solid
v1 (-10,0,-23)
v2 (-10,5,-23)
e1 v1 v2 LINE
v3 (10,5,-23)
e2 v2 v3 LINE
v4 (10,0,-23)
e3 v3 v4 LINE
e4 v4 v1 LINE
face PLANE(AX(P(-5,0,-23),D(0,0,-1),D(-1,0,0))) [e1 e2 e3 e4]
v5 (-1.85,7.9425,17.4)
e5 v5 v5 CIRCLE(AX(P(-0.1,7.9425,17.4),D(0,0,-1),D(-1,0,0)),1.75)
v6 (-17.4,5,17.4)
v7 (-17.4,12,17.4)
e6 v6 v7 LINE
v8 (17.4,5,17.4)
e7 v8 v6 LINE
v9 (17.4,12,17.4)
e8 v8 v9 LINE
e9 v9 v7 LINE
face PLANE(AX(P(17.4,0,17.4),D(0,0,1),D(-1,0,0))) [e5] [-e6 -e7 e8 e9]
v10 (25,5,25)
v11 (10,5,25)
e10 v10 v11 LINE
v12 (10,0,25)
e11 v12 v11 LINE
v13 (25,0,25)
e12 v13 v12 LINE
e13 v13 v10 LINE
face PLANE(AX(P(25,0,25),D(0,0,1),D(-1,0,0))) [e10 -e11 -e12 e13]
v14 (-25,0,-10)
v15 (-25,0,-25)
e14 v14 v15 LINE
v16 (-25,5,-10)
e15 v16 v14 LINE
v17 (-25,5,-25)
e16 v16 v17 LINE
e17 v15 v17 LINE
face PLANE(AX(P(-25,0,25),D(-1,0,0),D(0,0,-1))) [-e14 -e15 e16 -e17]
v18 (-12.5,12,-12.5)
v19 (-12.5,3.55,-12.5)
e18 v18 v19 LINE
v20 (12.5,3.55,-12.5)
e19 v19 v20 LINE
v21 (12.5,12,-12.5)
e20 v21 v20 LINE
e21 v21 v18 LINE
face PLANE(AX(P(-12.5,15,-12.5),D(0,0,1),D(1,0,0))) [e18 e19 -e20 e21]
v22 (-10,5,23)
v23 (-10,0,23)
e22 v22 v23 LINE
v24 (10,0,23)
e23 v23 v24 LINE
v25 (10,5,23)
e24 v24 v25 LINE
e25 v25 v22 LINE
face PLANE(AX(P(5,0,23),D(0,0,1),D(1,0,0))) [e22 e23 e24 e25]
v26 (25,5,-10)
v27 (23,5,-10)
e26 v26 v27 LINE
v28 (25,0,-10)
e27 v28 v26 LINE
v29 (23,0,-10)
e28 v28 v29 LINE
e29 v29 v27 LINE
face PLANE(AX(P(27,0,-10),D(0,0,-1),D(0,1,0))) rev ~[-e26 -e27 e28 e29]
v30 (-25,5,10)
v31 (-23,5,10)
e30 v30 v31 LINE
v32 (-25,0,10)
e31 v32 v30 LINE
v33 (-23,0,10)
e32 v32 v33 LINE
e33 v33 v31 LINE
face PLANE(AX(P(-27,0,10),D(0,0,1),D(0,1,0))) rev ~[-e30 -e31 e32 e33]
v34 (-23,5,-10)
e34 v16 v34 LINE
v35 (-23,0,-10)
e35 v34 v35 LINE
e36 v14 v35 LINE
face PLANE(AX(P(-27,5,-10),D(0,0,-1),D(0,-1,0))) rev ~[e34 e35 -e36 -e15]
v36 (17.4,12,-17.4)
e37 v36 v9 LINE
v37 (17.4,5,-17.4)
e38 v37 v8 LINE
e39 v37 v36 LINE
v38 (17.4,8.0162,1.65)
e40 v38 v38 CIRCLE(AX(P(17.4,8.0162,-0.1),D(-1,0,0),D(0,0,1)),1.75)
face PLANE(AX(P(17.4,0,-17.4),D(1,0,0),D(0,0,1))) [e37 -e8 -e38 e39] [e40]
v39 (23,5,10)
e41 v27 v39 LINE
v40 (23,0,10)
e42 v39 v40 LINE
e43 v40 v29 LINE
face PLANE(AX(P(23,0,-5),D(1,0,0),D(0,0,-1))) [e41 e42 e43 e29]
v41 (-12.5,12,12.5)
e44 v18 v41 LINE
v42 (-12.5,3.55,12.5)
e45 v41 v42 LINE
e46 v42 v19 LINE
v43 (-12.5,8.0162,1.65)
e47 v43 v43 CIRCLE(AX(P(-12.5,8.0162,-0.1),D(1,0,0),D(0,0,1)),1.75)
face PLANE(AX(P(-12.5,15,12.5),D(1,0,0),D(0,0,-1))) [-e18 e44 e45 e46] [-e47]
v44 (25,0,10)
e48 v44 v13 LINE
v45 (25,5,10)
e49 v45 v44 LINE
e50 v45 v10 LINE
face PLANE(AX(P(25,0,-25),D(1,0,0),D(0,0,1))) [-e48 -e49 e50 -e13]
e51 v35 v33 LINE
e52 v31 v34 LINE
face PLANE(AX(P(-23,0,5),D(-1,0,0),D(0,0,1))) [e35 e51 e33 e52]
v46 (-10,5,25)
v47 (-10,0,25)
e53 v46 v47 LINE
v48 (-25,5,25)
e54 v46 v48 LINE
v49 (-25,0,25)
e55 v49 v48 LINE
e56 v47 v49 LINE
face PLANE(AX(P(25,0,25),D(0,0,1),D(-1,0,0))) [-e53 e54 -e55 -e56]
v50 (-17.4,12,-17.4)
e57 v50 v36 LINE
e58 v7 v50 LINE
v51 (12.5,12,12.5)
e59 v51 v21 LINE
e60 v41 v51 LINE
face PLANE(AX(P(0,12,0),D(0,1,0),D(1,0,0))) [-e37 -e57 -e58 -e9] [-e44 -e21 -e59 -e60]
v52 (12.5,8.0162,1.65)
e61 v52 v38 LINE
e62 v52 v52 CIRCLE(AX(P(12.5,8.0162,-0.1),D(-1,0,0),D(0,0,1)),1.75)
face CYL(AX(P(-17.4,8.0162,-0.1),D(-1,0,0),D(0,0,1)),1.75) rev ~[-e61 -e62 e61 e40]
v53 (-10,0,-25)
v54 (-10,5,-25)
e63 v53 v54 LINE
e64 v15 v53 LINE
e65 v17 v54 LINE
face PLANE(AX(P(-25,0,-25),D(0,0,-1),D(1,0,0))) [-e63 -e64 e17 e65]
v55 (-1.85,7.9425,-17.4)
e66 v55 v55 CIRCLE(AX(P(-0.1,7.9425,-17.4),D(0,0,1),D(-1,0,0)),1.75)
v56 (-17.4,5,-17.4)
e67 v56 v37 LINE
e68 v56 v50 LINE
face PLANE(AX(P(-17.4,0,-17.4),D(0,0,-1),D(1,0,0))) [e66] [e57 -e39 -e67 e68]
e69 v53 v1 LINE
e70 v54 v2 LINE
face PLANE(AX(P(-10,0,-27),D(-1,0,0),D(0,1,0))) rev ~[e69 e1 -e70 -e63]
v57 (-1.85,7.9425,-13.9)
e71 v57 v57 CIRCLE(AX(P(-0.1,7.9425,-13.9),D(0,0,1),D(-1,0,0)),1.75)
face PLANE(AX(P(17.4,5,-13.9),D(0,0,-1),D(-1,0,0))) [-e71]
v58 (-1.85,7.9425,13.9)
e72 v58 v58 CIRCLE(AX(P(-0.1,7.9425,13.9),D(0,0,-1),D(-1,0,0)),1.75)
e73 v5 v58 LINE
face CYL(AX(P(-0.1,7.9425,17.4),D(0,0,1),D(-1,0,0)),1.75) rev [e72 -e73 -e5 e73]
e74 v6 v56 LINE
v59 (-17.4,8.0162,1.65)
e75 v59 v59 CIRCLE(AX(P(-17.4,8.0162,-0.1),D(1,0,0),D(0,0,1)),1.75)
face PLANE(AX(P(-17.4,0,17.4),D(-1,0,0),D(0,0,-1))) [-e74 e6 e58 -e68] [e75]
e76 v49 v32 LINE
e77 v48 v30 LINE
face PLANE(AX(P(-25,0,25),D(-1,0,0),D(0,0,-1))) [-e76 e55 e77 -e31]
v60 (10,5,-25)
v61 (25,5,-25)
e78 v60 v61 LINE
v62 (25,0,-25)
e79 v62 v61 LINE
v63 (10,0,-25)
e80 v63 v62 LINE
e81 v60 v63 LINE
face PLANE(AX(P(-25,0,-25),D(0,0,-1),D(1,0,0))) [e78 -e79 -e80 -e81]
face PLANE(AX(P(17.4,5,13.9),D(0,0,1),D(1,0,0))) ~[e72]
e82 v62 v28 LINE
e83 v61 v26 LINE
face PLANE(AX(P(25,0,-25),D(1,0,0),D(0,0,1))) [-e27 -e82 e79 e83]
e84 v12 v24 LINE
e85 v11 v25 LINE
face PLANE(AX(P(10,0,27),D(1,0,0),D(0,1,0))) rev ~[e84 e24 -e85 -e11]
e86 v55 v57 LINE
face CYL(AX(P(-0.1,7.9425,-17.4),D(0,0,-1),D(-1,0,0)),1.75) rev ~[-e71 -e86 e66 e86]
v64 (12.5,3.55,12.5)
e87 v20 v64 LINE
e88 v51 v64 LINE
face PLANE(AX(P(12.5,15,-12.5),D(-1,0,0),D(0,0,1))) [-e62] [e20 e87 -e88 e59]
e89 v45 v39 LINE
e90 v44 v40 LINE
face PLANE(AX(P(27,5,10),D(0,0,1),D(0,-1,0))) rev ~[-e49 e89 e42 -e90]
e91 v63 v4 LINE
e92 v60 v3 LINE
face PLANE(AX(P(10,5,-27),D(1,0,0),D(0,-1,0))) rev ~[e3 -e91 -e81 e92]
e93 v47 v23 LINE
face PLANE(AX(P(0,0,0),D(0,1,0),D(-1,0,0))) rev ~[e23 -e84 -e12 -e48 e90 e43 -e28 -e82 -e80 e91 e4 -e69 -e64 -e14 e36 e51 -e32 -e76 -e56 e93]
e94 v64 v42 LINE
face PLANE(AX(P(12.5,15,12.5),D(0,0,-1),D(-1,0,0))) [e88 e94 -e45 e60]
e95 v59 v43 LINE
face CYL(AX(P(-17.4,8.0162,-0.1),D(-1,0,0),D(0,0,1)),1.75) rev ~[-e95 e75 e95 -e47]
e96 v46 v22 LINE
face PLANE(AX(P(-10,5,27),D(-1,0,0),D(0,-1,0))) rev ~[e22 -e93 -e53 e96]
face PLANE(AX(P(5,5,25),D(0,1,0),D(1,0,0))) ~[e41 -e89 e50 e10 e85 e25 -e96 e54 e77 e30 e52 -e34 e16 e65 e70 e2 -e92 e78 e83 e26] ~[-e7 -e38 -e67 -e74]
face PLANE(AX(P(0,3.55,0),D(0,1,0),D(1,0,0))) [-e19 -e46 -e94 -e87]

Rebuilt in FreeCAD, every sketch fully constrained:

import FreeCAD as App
import Part
import Sketcher
from FreeCAD import Vector


def add_polygon(sketch, points):
    """Adds a closed chain of lines whose ends are joined by coincident constraints."""
    first, n = sketch.GeometryCount, len(points)
    for a, b in zip(points, points[1:] + points[:1]):
        sketch.addGeometry(Part.LineSegment(App.Vector(*a, 0), App.Vector(*b, 0)), False)
    for i in range(n):
        sketch.addConstraint(Sketcher.Constraint("Coincident", first + i, 2, first + (i + 1) % n, 1))

doc = App.newDocument("Part")
body = doc.addObject("PartDesign::Body", "Body")

# Sketch on XZ plane
sketch1 = body.newObject("Sketcher::SketchObject", "Sketch")
sketch1.AttachmentSupport = (doc.getObject("XZ_Plane"), [""])
sketch1.MapMode = "FlatFace"
add_polygon(sketch1, [(-25, 25), (25, 25), (25, -25), (-25, -25)])  # lines 0-3
add_polygon(sketch1, [(17, -17), (17, 17), (-17, 17), (-17, -17)])  # lines 4-7
sketch1.addConstraint(Sketcher.Constraint("Horizontal", 0))
sketch1.addConstraint(Sketcher.Constraint("Vertical", 1))
sketch1.addConstraint(Sketcher.Constraint("Horizontal", 2))
sketch1.addConstraint(Sketcher.Constraint("Vertical", 3))
sketch1.addConstraint(Sketcher.Constraint("Vertical", 4))
sketch1.addConstraint(Sketcher.Constraint("Horizontal", 5))
sketch1.addConstraint(Sketcher.Constraint("Vertical", 6))
sketch1.addConstraint(Sketcher.Constraint("Horizontal", 7))
sketch1.addConstraint(Sketcher.Constraint("Symmetric", 0, 2, 2, 2, -1, 1))
sketch1.addConstraint(Sketcher.Constraint("Symmetric", 4, 2, 6, 2, -1, 1))
sketch1.addConstraint(Sketcher.Constraint("Equal", 2, 1))
sketch1.addConstraint(Sketcher.Constraint("Equal", 7, 4))
sketch1.addConstraint(Sketcher.Constraint("DistanceX", 0, 1, 0, 2, 50.0))
sketch1.addConstraint(Sketcher.Constraint("DistanceX", 5, 2, 5, 1, 34.8))
pad1 = body.newObject("PartDesign::Pad", "Pad")
pad1.Profile = sketch1
pad1.Length = 5
pad1.Reversed = True

# Sketch on XZ plane
sketch2 = body.newObject("Sketcher::SketchObject", "Sketch001")
sketch2.AttachmentSupport = (doc.getObject("XZ_Plane"), [""])
sketch2.MapMode = "FlatFace"
add_polygon(sketch2, [(-17, 17), (17, 17), (17, -17), (-17, -17)])  # lines 0-3
sketch2.addConstraint(Sketcher.Constraint("Horizontal", 0))
sketch2.addConstraint(Sketcher.Constraint("Vertical", 1))
sketch2.addConstraint(Sketcher.Constraint("Horizontal", 2))
sketch2.addConstraint(Sketcher.Constraint("Vertical", 3))
sketch2.addConstraint(Sketcher.Constraint("Symmetric", 0, 2, 2, 2, -1, 1))
sketch2.addConstraint(Sketcher.Constraint("Equal", 2, 1))
sketch2.addConstraint(Sketcher.Constraint("DistanceX", 0, 1, 0, 2, 34.8))
pad2 = body.newObject("PartDesign::Pad", "Pad001")
pad2.Profile = sketch2
pad2.Length = 15
pad2.Reversed = True

# Sketch on XZ plane
sketch3 = body.newObject("Sketcher::SketchObject", "Sketch002")
sketch3.AttachmentSupport = (doc.getObject("XZ_Plane"), [""])
sketch3.MapMode = "FlatFace"
add_polygon(sketch3, [(5, 25), (-5, 25), (-5, 5), (-25, 5), (-25, -5), (-5, -5), (-5, -25), (5, -25), (5, -5), (25, -5), (25, 5), (5, 5)])  # lines 0-11
sketch3.addConstraint(Sketcher.Constraint("Horizontal", 0))
sketch3.addConstraint(Sketcher.Constraint("Vertical", 1))
sketch3.addConstraint(Sketcher.Constraint("Horizontal", 2))
sketch3.addConstraint(Sketcher.Constraint("Vertical", 3))
sketch3.addConstraint(Sketcher.Constraint("Horizontal", 4))
sketch3.addConstraint(Sketcher.Constraint("Vertical", 5))
sketch3.addConstraint(Sketcher.Constraint("Horizontal", 6))
sketch3.addConstraint(Sketcher.Constraint("Vertical", 7))
sketch3.addConstraint(Sketcher.Constraint("Horizontal", 8))
sketch3.addConstraint(Sketcher.Constraint("Vertical", 9))
sketch3.addConstraint(Sketcher.Constraint("Horizontal", 10))
sketch3.addConstraint(Sketcher.Constraint("Vertical", 11))
sketch3.addConstraint(Sketcher.Constraint("Symmetric", 0, 2, 6, 2, -1, 1))
sketch3.addConstraint(Sketcher.Constraint("Symmetric", 2, 2, 8, 2, -1, 1))
sketch3.addConstraint(Sketcher.Constraint("Symmetric", 4, 2, 10, 2, -1, 1))
sketch3.addConstraint(Sketcher.Constraint("Symmetric", 4, 2, 7, 2, -2))
sketch3.addConstraint(Sketcher.Constraint("Equal", 10, 1))
sketch3.addConstraint(Sketcher.Constraint("Equal", 6, 3))
sketch3.addConstraint(Sketcher.Constraint("DistanceX", 0, 2, 0, 1, 10.0))
sketch3.addConstraint(Sketcher.Constraint("DistanceX", 2, 2, 2, 1, 20.0))
pad3 = body.newObject("PartDesign::Pad", "Pad002")
pad3.Profile = sketch3
pad3.Length = 2

# Sketch on YZ plane
sketch4 = body.newObject("Sketcher::SketchObject", "Sketch003")
sketch4.AttachmentSupport = (doc.getObject("YZ_Plane"), [""])
sketch4.MapMode = "FlatFace"
sketch4.AttachmentOffset = App.Placement(Vector(0, 0, -25), App.Rotation())
add_polygon(sketch4, [(-2, -5), (-2, 5), (5, 5), (5, -5)])  # lines 0-3
sketch4.addConstraint(Sketcher.Constraint("Vertical", 0))
sketch4.addConstraint(Sketcher.Constraint("Horizontal", 1))
sketch4.addConstraint(Sketcher.Constraint("Vertical", 2))
sketch4.addConstraint(Sketcher.Constraint("Horizontal", 3))
sketch4.addConstraint(Sketcher.Constraint("DistanceY", 0, 1, 0, 2, 10.0))
sketch4.addConstraint(Sketcher.Constraint("DistanceX", 1, 1, 1, 2, 7.0))
sketch4.addConstraint(Sketcher.Constraint("DistanceX", 0, 2, -1, 1, 2.0))
sketch4.addConstraint(Sketcher.Constraint("DistanceY", -1, 1, 0, 2, 5.0))
pad4 = body.newObject("PartDesign::Pad", "Pad003")
pad4.Profile = sketch4
pad4.Length = 2
pad4.Reversed = True
doc.recompute()

mirrored = body.newObject("PartDesign::Mirrored", "Mirrored")
mirrored.Originals = [pad4]
mirrored.MirrorPlane = (doc.getObject("YZ_Plane"), [""])
body.Tip = mirrored

# Sketch on XY plane
sketch5 = body.newObject("Sketcher::SketchObject", "Sketch004")
sketch5.AttachmentSupport = (doc.getObject("XY_Plane"), [""])
sketch5.MapMode = "FlatFace"
sketch5.AttachmentOffset = App.Placement(Vector(0, 0, -25), App.Rotation())
add_polygon(sketch5, [(5, -2), (-5, -2), (-5, 5), (5, 5)])  # lines 0-3
sketch5.addConstraint(Sketcher.Constraint("Horizontal", 0))
sketch5.addConstraint(Sketcher.Constraint("Vertical", 1))
sketch5.addConstraint(Sketcher.Constraint("Horizontal", 2))
sketch5.addConstraint(Sketcher.Constraint("Vertical", 3))
sketch5.addConstraint(Sketcher.Constraint("DistanceX", 0, 2, 0, 1, 10.0))
sketch5.addConstraint(Sketcher.Constraint("DistanceY", 1, 1, 1, 2, 7.0))
sketch5.addConstraint(Sketcher.Constraint("DistanceX", 0, 2, -1, 1, 5.0))
sketch5.addConstraint(Sketcher.Constraint("DistanceY", 0, 2, -1, 1, 2.0))
pad5 = body.newObject("PartDesign::Pad", "Pad004")
pad5.Profile = sketch5
pad5.Length = 2
pad5.Reversed = True
doc.recompute()

mirrored2 = body.newObject("PartDesign::Mirrored", "Mirrored001")
mirrored2.Originals = [pad5]
mirrored2.MirrorPlane = (doc.getObject("XY_Plane"), [""])
body.Tip = mirrored2

# Sketch on XZ plane
sketch6 = body.newObject("Sketcher::SketchObject", "Sketch005")
sketch6.AttachmentSupport = (doc.getObject("XZ_Plane"), [""])
sketch6.MapMode = "FlatFace"
add_polygon(sketch6, [(27, 27), (-27, 27), (-27, -27), (27, -27)])  # lines 0-3
sketch6.addConstraint(Sketcher.Constraint("Horizontal", 0))
sketch6.addConstraint(Sketcher.Constraint("Vertical", 1))
sketch6.addConstraint(Sketcher.Constraint("Horizontal", 2))
sketch6.addConstraint(Sketcher.Constraint("Vertical", 3))
sketch6.addConstraint(Sketcher.Constraint("Symmetric", 0, 2, 2, 2, -1, 1))
sketch6.addConstraint(Sketcher.Constraint("Equal", 2, 1))
sketch6.addConstraint(Sketcher.Constraint("DistanceX", 0, 2, 0, 1, 54.0))
pocket1 = body.newObject("PartDesign::Pocket", "Pocket")
pocket1.Profile = sketch6
pocket1.Length = 6.75
pocket1.Reversed = True

# Sketch on XZ plane
sketch7 = body.newObject("Sketcher::SketchObject", "Sketch006")
sketch7.AttachmentSupport = (doc.getObject("XZ_Plane"), [""])
sketch7.MapMode = "FlatFace"
sketch7.AttachmentOffset = App.Placement(Vector(0, 0, -15), App.Rotation())
add_polygon(sketch7, [(-12, 12), (12, 12), (12, -12), (-12, -12)])  # lines 0-3
sketch7.addConstraint(Sketcher.Constraint("Horizontal", 0))
sketch7.addConstraint(Sketcher.Constraint("Vertical", 1))
sketch7.addConstraint(Sketcher.Constraint("Horizontal", 2))
sketch7.addConstraint(Sketcher.Constraint("Vertical", 3))
sketch7.addConstraint(Sketcher.Constraint("Symmetric", 0, 2, 2, 2, -1, 1))
sketch7.addConstraint(Sketcher.Constraint("Equal", 2, 1))
sketch7.addConstraint(Sketcher.Constraint("DistanceX", 0, 1, 0, 2, 25.0))
pocket2 = body.newObject("PartDesign::Pocket", "Pocket001")
pocket2.Profile = sketch7
pocket2.Length = 11.45
pocket2.Reversed = True

# Sketch on YZ plane
sketch8 = body.newObject("Sketcher::SketchObject", "Sketch007")
sketch8.AttachmentSupport = (doc.getObject("YZ_Plane"), [""])
sketch8.MapMode = "FlatFace"
sketch8.AttachmentOffset = App.Placement(Vector(0, 0, -17.4), App.Rotation())
sketch8.addGeometry(Part.Circle(Vector(8, -0.1, 0), Vector(0, 0, 1), 1.8), False)
sketch8.addConstraint(Sketcher.Constraint("Diameter", 0, 3.5))
sketch8.addConstraint(Sketcher.Constraint("DistanceY", 0, 3, -1, 1, 0.1))
sketch8.addConstraint(Sketcher.Constraint("DistanceX", -1, 1, 0, 3, 8.0162))
pocket3 = body.newObject("PartDesign::Pocket", "Pocket002")
pocket3.Profile = sketch8
pocket3.Type = "ThroughAll"
pocket3.Reversed = True

# Sketch on XY plane
sketch9 = body.newObject("Sketcher::SketchObject", "Sketch008")
sketch9.AttachmentSupport = (doc.getObject("XY_Plane"), [""])
sketch9.MapMode = "FlatFace"
sketch9.AttachmentOffset = App.Placement(Vector(0, 0, -17.4), App.Rotation())
sketch9.addGeometry(Part.Circle(Vector(-0.1, 7.9, 0), Vector(0, 0, 1), 1.8), False)
sketch9.addConstraint(Sketcher.Constraint("Diameter", 0, 3.5))
sketch9.addConstraint(Sketcher.Constraint("DistanceX", 0, 3, -1, 1, 0.1))
sketch9.addConstraint(Sketcher.Constraint("DistanceY", -1, 1, 0, 3, 7.9425))
pocket4 = body.newObject("PartDesign::Pocket", "Pocket003")
pocket4.Profile = sketch9
pocket4.Length = 3.5
pocket4.Reversed = True
doc.recompute()

mirrored3 = body.newObject("PartDesign::Mirrored", "Mirrored002")
mirrored3.Originals = [pocket4]
mirrored3.MirrorPlane = (doc.getObject("XY_Plane"), [""])
body.Tip = mirrored3

# Sketch on XZ plane
sketch10 = body.newObject("Sketcher::SketchObject", "Sketch009")
sketch10.AttachmentSupport = (doc.getObject("XZ_Plane"), [""])
sketch10.MapMode = "FlatFace"
sketch10.AttachmentOffset = App.Placement(Vector(0, 0, -15), App.Rotation())
add_polygon(sketch10, [(-25, 25), (25, 25), (25, -25), (-25, -25)])  # lines 0-3
sketch10.addConstraint(Sketcher.Constraint("Horizontal", 0))
sketch10.addConstraint(Sketcher.Constraint("Vertical", 1))
sketch10.addConstraint(Sketcher.Constraint("Horizontal", 2))
sketch10.addConstraint(Sketcher.Constraint("Vertical", 3))
sketch10.addConstraint(Sketcher.Constraint("Symmetric", 0, 2, 2, 2, -1, 1))
sketch10.addConstraint(Sketcher.Constraint("Equal", 2, 1))
sketch10.addConstraint(Sketcher.Constraint("DistanceX", 0, 1, 0, 2, 50.0))
pocket5 = body.newObject("PartDesign::Pocket", "Pocket004")
pocket5.Profile = sketch10
pocket5.Length = 3
pocket5.Reversed = True

# Sketch on YZ plane
sketch11 = body.newObject("Sketcher::SketchObject", "Sketch010")
sketch11.AttachmentSupport = (doc.getObject("YZ_Plane"), [""])
sketch11.MapMode = "FlatFace"
sketch11.AttachmentOffset = App.Placement(Vector(0, 0, 27), App.Rotation())
add_polygon(sketch11, [(0, -10), (5, -10), (5, 10), (0, 10)])  # lines 0-3
sketch11.addConstraint(Sketcher.Constraint("Horizontal", 0))
sketch11.addConstraint(Sketcher.Constraint("Vertical", 1))
sketch11.addConstraint(Sketcher.Constraint("Horizontal", 2))
sketch11.addConstraint(Sketcher.Constraint("Vertical", 3))
sketch11.addConstraint(Sketcher.Constraint("Symmetric", 2, 2, 3, 2, -1, 1))
sketch11.addConstraint(Sketcher.Constraint("DistanceY", 1, 1, 1, 2, 20.0))
sketch11.addConstraint(Sketcher.Constraint("DistanceX", 0, 1, 0, 2, 5.0))
pocket6 = body.newObject("PartDesign::Pocket", "Pocket005")
pocket6.Profile = sketch11
pocket6.Length = 4
doc.recompute()

polarpattern = body.newObject("PartDesign::PolarPattern", "PolarPattern")
polarpattern.Originals = [pocket6]
polarpattern.Axis = (doc.getObject("Y_Axis"), [""])
polarpattern.Angle = 360
polarpattern.Occurrences = 4
body.Tip = polarpattern

doc.recompute()
